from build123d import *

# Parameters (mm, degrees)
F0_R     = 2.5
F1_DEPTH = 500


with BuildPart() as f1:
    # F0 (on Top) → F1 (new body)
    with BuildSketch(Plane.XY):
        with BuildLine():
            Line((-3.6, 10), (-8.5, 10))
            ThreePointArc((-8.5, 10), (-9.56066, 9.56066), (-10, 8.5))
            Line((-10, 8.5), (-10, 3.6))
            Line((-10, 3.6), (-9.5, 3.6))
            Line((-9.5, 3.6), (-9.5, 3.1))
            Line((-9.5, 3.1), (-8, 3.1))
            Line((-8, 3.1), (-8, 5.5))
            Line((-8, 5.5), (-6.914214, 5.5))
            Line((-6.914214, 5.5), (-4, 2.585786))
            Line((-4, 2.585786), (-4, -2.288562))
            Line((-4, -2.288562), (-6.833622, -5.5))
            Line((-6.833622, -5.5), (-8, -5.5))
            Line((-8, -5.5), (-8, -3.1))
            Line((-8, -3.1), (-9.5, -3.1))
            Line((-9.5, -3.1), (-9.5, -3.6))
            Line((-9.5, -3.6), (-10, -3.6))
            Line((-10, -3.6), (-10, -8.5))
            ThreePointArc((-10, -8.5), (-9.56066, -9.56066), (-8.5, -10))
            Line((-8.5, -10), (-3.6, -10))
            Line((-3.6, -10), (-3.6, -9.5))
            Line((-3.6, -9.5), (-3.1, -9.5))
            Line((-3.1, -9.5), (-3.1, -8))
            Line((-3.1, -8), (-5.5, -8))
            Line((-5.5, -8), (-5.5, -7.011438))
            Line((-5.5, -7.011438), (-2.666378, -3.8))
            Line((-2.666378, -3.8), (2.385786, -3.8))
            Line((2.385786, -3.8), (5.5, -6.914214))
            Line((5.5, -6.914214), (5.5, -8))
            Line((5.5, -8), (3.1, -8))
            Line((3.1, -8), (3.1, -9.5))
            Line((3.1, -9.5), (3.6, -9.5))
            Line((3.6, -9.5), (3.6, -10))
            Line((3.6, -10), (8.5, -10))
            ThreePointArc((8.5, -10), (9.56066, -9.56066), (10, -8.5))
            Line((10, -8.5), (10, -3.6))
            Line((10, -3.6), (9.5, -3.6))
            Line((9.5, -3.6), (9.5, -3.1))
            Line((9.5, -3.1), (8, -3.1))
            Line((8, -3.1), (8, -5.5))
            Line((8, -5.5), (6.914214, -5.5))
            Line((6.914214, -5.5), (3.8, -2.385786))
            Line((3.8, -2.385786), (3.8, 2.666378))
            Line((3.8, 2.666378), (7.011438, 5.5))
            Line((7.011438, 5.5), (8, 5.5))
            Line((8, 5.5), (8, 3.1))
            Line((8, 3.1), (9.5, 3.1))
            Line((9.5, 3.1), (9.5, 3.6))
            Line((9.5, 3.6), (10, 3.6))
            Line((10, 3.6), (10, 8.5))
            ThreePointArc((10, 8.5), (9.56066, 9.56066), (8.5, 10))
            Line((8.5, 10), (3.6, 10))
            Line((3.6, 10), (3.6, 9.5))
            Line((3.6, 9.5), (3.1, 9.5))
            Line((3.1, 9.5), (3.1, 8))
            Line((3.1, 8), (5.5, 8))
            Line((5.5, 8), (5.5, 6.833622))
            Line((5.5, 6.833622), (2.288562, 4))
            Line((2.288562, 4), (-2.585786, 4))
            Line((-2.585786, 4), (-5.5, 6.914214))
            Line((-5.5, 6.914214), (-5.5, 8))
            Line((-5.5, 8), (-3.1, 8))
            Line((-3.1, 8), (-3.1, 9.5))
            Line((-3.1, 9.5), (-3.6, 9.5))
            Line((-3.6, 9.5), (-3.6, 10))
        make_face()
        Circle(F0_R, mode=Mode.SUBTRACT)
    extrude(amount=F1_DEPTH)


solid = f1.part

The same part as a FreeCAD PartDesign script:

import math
import FreeCAD as App
import Part
import Sketcher
from FreeCAD import Vector

doc = App.newDocument("Part")
body = doc.addObject("PartDesign::Body", "Body")

# Sketch on XY plane
sketch1 = body.newObject("Sketcher::SketchObject", "Sketch")
sketch1.AttachmentSupport = (doc.getObject("XY_Plane"), [""])
sketch1.MapMode = "FlatFace"
sketch1.addGeometry(Part.LineSegment(Vector(-3.6, 10, 0), Vector(-8.5, 10, 0)), False)
sketch1.addGeometry(Part.ArcOfCircle(Part.Circle(Vector(-8.5, 8.5, 0), Vector(0, 0, 1), 1.5), math.radians(90), math.radians(180)), False)
sketch1.addGeometry(Part.LineSegment(Vector(-10, 8.5, 0), Vector(-10, 3.6, 0)), False)
sketch1.addGeometry(Part.LineSegment(Vector(-10, 3.6, 0), Vector(-9.5, 3.6, 0)), False)
sketch1.addGeometry(Part.LineSegment(Vector(-9.5, 3.6, 0), Vector(-9.5, 3.1, 0)), False)
sketch1.addGeometry(Part.LineSegment(Vector(-9.5, 3.1, 0), Vector(-8, 3.1, 0)), False)
sketch1.addGeometry(Part.LineSegment(Vector(-8, 3.1, 0), Vector(-8, 5.5, 0)), False)
sketch1.addGeometry(Part.LineSegment(Vector(-8, 5.5, 0), Vector(-6.9, 5.5, 0)), False)
sketch1.addGeometry(Part.LineSegment(Vector(-6.9, 5.5, 0), Vector(-4, 2.6, 0)), False)
sketch1.addGeometry(Part.LineSegment(Vector(-4, 2.6, 0), Vector(-4, -2.3, 0)), False)
sketch1.addGeometry(Part.LineSegment(Vector(-4, -2.3, 0), Vector(-6.8, -5.5, 0)), False)
sketch1.addGeometry(Part.LineSegment(Vector(-6.8, -5.5, 0), Vector(-8, -5.5, 0)), False)
sketch1.addGeometry(Part.LineSegment(Vector(-8, -5.5, 0), Vector(-8, -3.1, 0)), False)
sketch1.addGeometry(Part.LineSegment(Vector(-8, -3.1, 0), Vector(-9.5, -3.1, 0)), False)
sketch1.addGeometry(Part.LineSegment(Vector(-9.5, -3.1, 0), Vector(-9.5, -3.6, 0)), False)
sketch1.addGeometry(Part.LineSegment(Vector(-9.5, -3.6, 0), Vector(-10, -3.6, 0)), False)
sketch1.addGeometry(Part.LineSegment(Vector(-10, -3.6, 0), Vector(-10, -8.5, 0)), False)
sketch1.addGeometry(Part.ArcOfCircle(Part.Circle(Vector(-8.5, -8.5, 0), Vector(0, 0, 1), 1.5), math.radians(-180), math.radians(-90)), False)
sketch1.addGeometry(Part.LineSegment(Vector(-8.5, -10, 0), Vector(-3.6, -10, 0)), False)
sketch1.addGeometry(Part.LineSegment(Vector(-3.6, -10, 0), Vector(-3.6, -9.5, 0)), False)
sketch1.addGeometry(Part.LineSegment(Vector(-3.6, -9.5, 0), Vector(-3.1, -9.5, 0)), False)
sketch1.addGeometry(Part.LineSegment(Vector(-3.1, -9.5, 0), Vector(-3.1, -8, 0)), False)
sketch1.addGeometry(Part.LineSegment(Vector(-3.1, -8, 0), Vector(-5.5, -8, 0)), False)
sketch1.addGeometry(Part.LineSegment(Vector(-5.5, -8, 0), Vector(-5.5, -7, 0)), False)
sketch1.addGeometry(Part.LineSegment(Vector(-5.5, -7, 0), Vector(-2.7, -3.8, 0)), False)
sketch1.addGeometry(Part.LineSegment(Vector(-2.7, -3.8, 0), Vector(2.4, -3.8, 0)), False)
sketch1.addGeometry(Part.LineSegment(Vector(2.4, -3.8, 0), Vector(5.5, -6.9, 0)), False)
sketch1.addGeometry(Part.LineSegment(Vector(5.5, -6.9, 0), Vector(5.5, -8, 0)), False)
sketch1.addGeometry(Part.LineSegment(Vector(5.5, -8, 0), Vector(3.1, -8, 0)), False)
sketch1.addGeometry(Part.LineSegment(Vector(3.1, -8, 0), Vector(3.1, -9.5, 0)), False)
sketch1.addGeometry(Part.LineSegment(Vector(3.1, -9.5, 0), Vector(3.6, -9.5, 0)), False)
sketch1.addGeometry(Part.LineSegment(Vector(3.6, -9.5, 0), Vector(3.6, -10, 0)), False)
sketch1.addGeometry(Part.LineSegment(Vector(3.6, -10, 0), Vector(8.5, -10, 0)), False)
sketch1.addGeometry(Part.ArcOfCircle(Part.Circle(Vector(8.5, -8.5, 0), Vector(0, 0, 1), 1.5), math.radians(-90), math.radians(0)), False)
sketch1.addGeometry(Part.LineSegment(Vector(10, -8.5, 0), Vector(10, -3.6, 0)), False)
sketch1.addGeometry(Part.LineSegment(Vector(10, -3.6, 0), Vector(9.5, -3.6, 0)), False)
sketch1.addGeometry(Part.LineSegment(Vector(9.5, -3.6, 0), Vector(9.5, -3.1, 0)), False)
sketch1.addGeometry(Part.LineSegment(Vector(9.5, -3.1, 0), Vector(8, -3.1, 0)), False)
sketch1.addGeometry(Part.LineSegment(Vector(8, -3.1, 0), Vector(8, -5.5, 0)), False)
sketch1.addGeometry(Part.LineSegment(Vector(8, -5.5, 0), Vector(6.9, -5.5, 0)), False)
sketch1.addGeometry(Part.LineSegment(Vector(6.9, -5.5, 0), Vector(3.8, -2.4, 0)), False)
sketch1.addGeometry(Part.LineSegment(Vector(3.8, -2.4, 0), Vector(3.8, 2.7, 0)), False)
sketch1.addGeometry(Part.LineSegment(Vector(3.8, 2.7, 0), Vector(7, 5.5, 0)), False)
sketch1.addGeometry(Part.LineSegment(Vector(7, 5.5, 0), Vector(8, 5.5, 0)), False)
sketch1.addGeometry(Part.LineSegment(Vector(8, 5.5, 0), Vector(8, 3.1, 0)), False)
sketch1.addGeometry(Part.LineSegment(Vector(8, 3.1, 0), Vector(9.5, 3.1, 0)), False)
sketch1.addGeometry(Part.LineSegment(Vector(9.5, 3.1, 0), Vector(9.5, 3.6, 0)), False)
sketch1.addGeometry(Part.LineSegment(Vector(9.5, 3.6, 0), Vector(10, 3.6, 0)), False)
sketch1.addGeometry(Part.LineSegment(Vector(10, 3.6, 0), Vector(10, 8.5, 0)), False)
sketch1.addGeometry(Part.ArcOfCircle(Part.Circle(Vector(8.5, 8.5, 0), Vector(0, 0, 1), 1.5), math.radians(0), math.radians(90)), False)
sketch1.addGeometry(Part.LineSegment(Vector(8.5, 10, 0), Vector(3.6, 10, 0)), False)
sketch1.addGeometry(Part.LineSegment(Vector(3.6, 10, 0), Vector(3.6, 9.5, 0)), False)
sketch1.addGeometry(Part.LineSegment(Vector(3.6, 9.5, 0), Vector(3.1, 9.5, 0)), False)
sketch1.addGeometry(Part.LineSegment(Vector(3.1, 9.5, 0), Vector(3.1, 8, 0)), False)
sketch1.addGeometry(Part.LineSegment(Vector(3.1, 8, 0), Vector(5.5, 8, 0)), False)
sketch1.addGeometry(Part.LineSegment(Vector(5.5, 8, 0), Vector(5.5, 6.8, 0)), False)
sketch1.addGeometry(Part.LineSegment(Vector(5.5, 6.8, 0), Vector(2.3, 4, 0)), False)
sketch1.addGeometry(Part.LineSegment(Vector(2.3, 4, 0), Vector(-2.6, 4, 0)), False)
sketch1.addGeometry(Part.LineSegment(Vector(-2.6, 4, 0), Vector(-5.5, 6.9, 0)), False)
sketch1.addGeometry(Part.LineSegment(Vector(-5.5, 6.9, 0), Vector(-5.5, 8, 0)), False)
sketch1.addGeometry(Part.LineSegment(Vector(-5.5, 8, 0), Vector(-3.1, 8, 0)), False)
sketch1.addGeometry(Part.LineSegment(Vector(-3.1, 8, 0), Vector(-3.1, 9.5, 0)), False)
sketch1.addGeometry(Part.LineSegment(Vector(-3.1, 9.5, 0), Vector(-3.6, 9.5, 0)), False)
sketch1.addGeometry(Part.LineSegment(Vector(-3.6, 9.5, 0), Vector(-3.6, 10, 0)), False)
sketch1.addGeometry(Part.Circle(Vector(0, 0, 0), Vector(0, 0, 1), 2.5), False)
sketch1.addConstraint(Sketcher.Constraint("Tangent", 0, 2, 1, 1))
sketch1.addConstraint(Sketcher.Constraint("Tangent", 1, 2, 2, 1))
sketch1.addConstraint(Sketcher.Constraint("Coincident", 2, 2, 3, 1))
sketch1.addConstraint(Sketcher.Constraint("Coincident", 3, 2, 4, 1))
sketch1.addConstraint(Sketcher.Constraint("Coincident", 4, 2, 5, 1))
sketch1.addConstraint(Sketcher.Constraint("Coincident", 5, 2, 6, 1))
sketch1.addConstraint(Sketcher.Constraint("Coincident", 6, 2, 7, 1))
sketch1.addConstraint(Sketcher.Constraint("Coincident", 7, 2, 8, 1))
sketch1.addConstraint(Sketcher.Constraint("Coincident", 8, 2, 9, 1))
sketch1.addConstraint(Sketcher.Constraint("Coincident", 9, 2, 10, 1))
sketch1.addConstraint(Sketcher.Constraint("Coincident", 10, 2, 11, 1))
sketch1.addConstraint(Sketcher.Constraint("Coincident", 11, 2, 12, 1))
sketch1.addConstraint(Sketcher.Constraint("Coincident", 12, 2, 13, 1))
sketch1.addConstraint(Sketcher.Constraint("Coincident", 13, 2, 14, 1))
sketch1.addConstraint(Sketcher.Constraint("Coincident", 14, 2, 15, 1))
sketch1.addConstraint(Sketcher.Constraint("Coincident", 15, 2, 16, 1))
sketch1.addConstraint(Sketcher.Constraint("Tangent", 16, 2, 17, 1))
sketch1.addConstraint(Sketcher.Constraint("Tangent", 17, 2, 18, 1))
sketch1.addConstraint(Sketcher.Constraint("Coincident", 18, 2, 19, 1))
sketch1.addConstraint(Sketcher.Constraint("Coincident", 19, 2, 20, 1))
sketch1.addConstraint(Sketcher.Constraint("Coincident", 20, 2, 21, 1))
sketch1.addConstraint(Sketcher.Constraint("Coincident", 21, 2, 22, 1))
sketch1.addConstraint(Sketcher.Constraint("Coincident", 22, 2, 23, 1))
sketch1.addConstraint(Sketcher.Constraint("Coincident", 23, 2, 24, 1))
sketch1.addConstraint(Sketcher.Constraint("Coincident", 24, 2, 25, 1))
sketch1.addConstraint(Sketcher.Constraint("Coincident", 25, 2, 26, 1))
sketch1.addConstraint(Sketcher.Constraint("Coincident", 26, 2, 27, 1))
sketch1.addConstraint(Sketcher.Constraint("Coincident", 27, 2, 28, 1))
sketch1.addConstraint(Sketcher.Constraint("Coincident", 28, 2, 29, 1))
sketch1.addConstraint(Sketcher.Constraint("Coincident", 29, 2, 30, 1))
sketch1.addConstraint(Sketcher.Constraint("Coincident", 30, 2, 31, 1))
sketch1.addConstraint(Sketcher.Constraint("Coincident", 31, 2, 32, 1))
sketch1.addConstraint(Sketcher.Constraint("Tangent", 32, 2, 33, 1))
sketch1.addConstraint(Sketcher.Constraint("Tangent", 33, 2, 34, 1))
sketch1.addConstraint(Sketcher.Constraint("Coincident", 34, 2, 35, 1))
sketch1.addConstraint(Sketcher.Constraint("Coincident", 35, 2, 36, 1))
sketch1.addConstraint(Sketcher.Constraint("Coincident", 36, 2, 37, 1))
sketch1.addConstraint(Sketcher.Constraint("Coincident", 37, 2, 38, 1))
sketch1.addConstraint(Sketcher.Constraint("Coincident", 38, 2, 39, 1))
sketch1.addConstraint(Sketcher.Constraint("Coincident", 39, 2, 40, 1))
sketch1.addConstraint(Sketcher.Constraint("Coincident", 40, 2, 41, 1))
sketch1.addConstraint(Sketcher.Constraint("Coincident", 41, 2, 42, 1))
sketch1.addConstraint(Sketcher.Constraint("Coincident", 42, 2, 43, 1))
sketch1.addConstraint(Sketcher.Constraint("Coincident", 43, 2, 44, 1))
sketch1.addConstraint(Sketcher.Constraint("Coincident", 44, 2, 45, 1))
sketch1.addConstraint(Sketcher.Constraint("Coincident", 45, 2, 46, 1))
sketch1.addConstraint(Sketcher.Constraint("Coincident", 46, 2, 47, 1))
sketch1.addConstraint(Sketcher.Constraint("Coincident", 47, 2, 48, 1))
sketch1.addConstraint(Sketcher.Constraint("Tangent", 48, 2, 49, 1))
sketch1.addConstraint(Sketcher.Constraint("Tangent", 49, 2, 50, 1))
sketch1.addConstraint(Sketcher.Constraint("Coincident", 50, 2, 51, 1))
sketch1.addConstraint(Sketcher.Constraint("Coincident", 51, 2, 52, 1))
sketch1.addConstraint(Sketcher.Constraint("Coincident", 52, 2, 53, 1))
sketch1.addConstraint(Sketcher.Constraint("Coincident", 53, 2, 54, 1))
sketch1.addConstraint(Sketcher.Constraint("Coincident", 54, 2, 55, 1))
sketch1.addConstraint(Sketcher.Constraint("Coincident", 55, 2, 56, 1))
sketch1.addConstraint(Sketcher.Constraint("Coincident", 56, 2, 57, 1))
sketch1.addConstraint(Sketcher.Constraint("Coincident", 57, 2, 58, 1))
sketch1.addConstraint(Sketcher.Constraint("Coincident", 58, 2, 59, 1))
sketch1.addConstraint(Sketcher.Constraint("Coincident", 59, 2, 60, 1))
sketch1.addConstraint(Sketcher.Constraint("Coincident", 60, 2, 61, 1))
sketch1.addConstraint(Sketcher.Constraint("Coincident", 61, 2, 62, 1))
sketch1.addConstraint(Sketcher.Constraint("Coincident", 62, 2, 63, 1))
sketch1.addConstraint(Sketcher.Constraint("Coincident", 63, 2, 0, 1))
sketch1.addConstraint(Sketcher.Constraint("Horizontal", 0))
sketch1.addConstraint(Sketcher.Constraint("Vertical", 2))
sketch1.addConstraint(Sketcher.Constraint("Horizontal", 3))
sketch1.addConstraint(Sketcher.Constraint("Vertical", 4))
sketch1.addConstraint(Sketcher.Constraint("Horizontal", 5))
sketch1.addConstraint(Sketcher.Constraint("Vertical", 6))
sketch1.addConstraint(Sketcher.Constraint("Horizontal", 7))
sketch1.addConstraint(Sketcher.Constraint("Vertical", 9))
sketch1.addConstraint(Sketcher.Constraint("Horizontal", 11))
sketch1.addConstraint(Sketcher.Constraint("Vertical", 12))
sketch1.addConstraint(Sketcher.Constraint("Horizontal", 13))
sketch1.addConstraint(Sketcher.Constraint("Vertical", 14))
sketch1.addConstraint(Sketcher.Constraint("Horizontal", 15))
sketch1.addConstraint(Sketcher.Constraint("Vertical", 16))
sketch1.addConstraint(Sketcher.Constraint("Horizontal", 18))
sketch1.addConstraint(Sketcher.Constraint("Vertical", 19))
sketch1.addConstraint(Sketcher.Constraint("Horizontal", 20))
sketch1.addConstraint(Sketcher.Constraint("Vertical", 21))
sketch1.addConstraint(Sketcher.Constraint("Horizontal", 22))
sketch1.addConstraint(Sketcher.Constraint("Vertical", 23))
sketch1.addConstraint(Sketcher.Constraint("Horizontal", 25))
sketch1.addConstraint(Sketcher.Constraint("Vertical", 27))
sketch1.addConstraint(Sketcher.Constraint("Horizontal", 28))
sketch1.addConstraint(Sketcher.Constraint("Vertical", 29))
sketch1.addConstraint(Sketcher.Constraint("Horizontal", 30))
sketch1.addConstraint(Sketcher.Constraint("Vertical", 31))
sketch1.addConstraint(Sketcher.Constraint("Horizontal", 32))
sketch1.addConstraint(Sketcher.Constraint("Vertical", 34))
sketch1.addConstraint(Sketcher.Constraint("Horizontal", 35))
sketch1.addConstraint(Sketcher.Constraint("Vertical", 36))
sketch1.addConstraint(Sketcher.Constraint("Horizontal", 37))
sketch1.addConstraint(Sketcher.Constraint("Vertical", 38))
sketch1.addConstraint(Sketcher.Constraint("Horizontal", 39))
sketch1.addConstraint(Sketcher.Constraint("Vertical", 41))
sketch1.addConstraint(Sketcher.Constraint("Horizontal", 43))
sketch1.addConstraint(Sketcher.Constraint("Vertical", 44))
sketch1.addConstraint(Sketcher.Constraint("Horizontal", 45))
sketch1.addConstraint(Sketcher.Constraint("Vertical", 46))
sketch1.addConstraint(Sketcher.Constraint("Horizontal", 47))
sketch1.addConstraint(Sketcher.Constraint("Vertical", 48))
sketch1.addConstraint(Sketcher.Constraint("Horizontal", 50))
sketch1.addConstraint(Sketcher.Constraint("Vertical", 51))
sketch1.addConstraint(Sketcher.Constraint("Horizontal", 52))
sketch1.addConstraint(Sketcher.Constraint("Vertical", 53))
sketch1.addConstraint(Sketcher.Constraint("Horizontal", 54))
sketch1.addConstraint(Sketcher.Constraint("Vertical", 55))
sketch1.addConstraint(Sketcher.Constraint("Horizontal", 57))
sketch1.addConstraint(Sketcher.Constraint("Vertical", 59))
sketch1.addConstraint(Sketcher.Constraint("Horizontal", 60))
sketch1.addConstraint(Sketcher.Constraint("Vertical", 61))
sketch1.addConstraint(Sketcher.Constraint("Horizontal", 62))
sketch1.addConstraint(Sketcher.Constraint("Vertical", 63))
sketch1.addConstraint(Sketcher.Constraint("Coincident", 64, 3, -1, 1))
sketch1.addConstraint(Sketcher.Constraint("Equal", 1, 17))
sketch1.addConstraint(Sketcher.Constraint("Equal", 17, 33))
sketch1.addConstraint(Sketcher.Constraint("Equal", 33, 49))
sketch1.addConstraint(Sketcher.Constraint("Symmetric", 1, 3, 33, 3, -1, 1))
sketch1.addConstraint(Sketcher.Constraint("Symmetric", 17, 3, 49, 3, -1, 1))
sketch1.addConstraint(Sketcher.Constraint("Symmetric", 3, 2, 35, 2, -1, 1))
sketch1.addConstraint(Sketcher.Constraint("Symmetric", 5, 2, 37, 2, -1, 1))
sketch1.addConstraint(Sketcher.Constraint("Symmetric", 7, 2, 39, 2, -1, 1))
sketch1.addConstraint(Sketcher.Constraint("Symmetric", 11, 2, 43, 2, -1, 1))
sketch1.addConstraint(Sketcher.Constraint("Symmetric", 13, 2, 45, 2, -1, 1))
sketch1.addConstraint(Sketcher.Constraint("Symmetric", 19, 2, 51, 2, -1, 1))
sketch1.addConstraint(Sketcher.Constraint("Symmetric", 21, 2, 53, 2, -1, 1))
sketch1.addConstraint(Sketcher.Constraint("Symmetric", 26, 2, 58, 2, -1, 1))
sketch1.addConstraint(Sketcher.Constraint("Symmetric", 28, 2, 60, 2, -1, 1))
sketch1.addConstraint(Sketcher.Constraint("Symmetric", 30, 2, 62, 2, -1, 1))
sketch1.addConstraint(Sketcher.Constraint("Symmetric", 17, 3, 33, 3, -2))
sketch1.addConstraint(Sketcher.Constraint("Symmetric", 22, 2, 27, 2, -2))
sketch1.addConstraint(Sketcher.Constraint("Symmetric", 20, 2, 29, 2, -2))
sketch1.addConstraint(Sketcher.Constraint("Symmetric", 14, 2, 35, 2, -2))
sketch1.addConstraint(Sketcher.Constraint("Symmetric", 12, 2, 37, 2, -2))
sketch1.addConstraint(Sketcher.Constraint("Parallel", 10, 24))
sketch1.addConstraint(Sketcher.Constraint("Parallel", 8, 26))
sketch1.addConstraint(Sketcher.Constraint("Parallel", 26, 40))
sketch1.addConstraint(Sketcher.Constraint("Parallel", 42, 56))
sketch1.addConstraint(Sketcher.Constraint("Parallel", 40, 58))
sketch1.addConstraint(Sketcher.Constraint("Horizontal", 11, 2, 38, 2))
sketch1.addConstraint(Sketcher.Constraint("Horizontal", 3, 2, 46, 2))
sketch1.addConstraint(Sketcher.Constraint("Vertical", 31, 2, 50, 2))
sketch1.addConstraint(Sketcher.Constraint("Vertical", 27, 2, 54, 2))
sketch1.addConstraint(Sketcher.Constraint("Equal", 15, 20))
sketch1.addConstraint(Sketcher.Constraint("Equal", 50, 2))
sketch1.addConstraint(Sketcher.Constraint("Equal", 62, 4))
sketch1.addConstraint(Sketcher.Constraint("Equal", 60, 6))
sketch1.addConstraint(Sketcher.Constraint("Equal", 57, 9))
sketch1.addConstraint(Sketcher.Constraint("Equal", 14, 19))
sketch1.addConstraint(Sketcher.Constraint("Equal", 45, 21))
sketch1.addConstraint(Sketcher.Constraint("Equal", 43, 23))
sketch1.addConstraint(Sketcher.Constraint("Equal", 39, 27))
sketch1.addConstraint(Sketcher.Constraint("Equal", 25, 41))
sketch1.addConstraint(Sketcher.Constraint("Equal", 11, 55))
sketch1.addConstraint(Sketcher.Constraint("Equal", 10, 24))
sketch1.addConstraint(Sketcher.Constraint("Equal", 26, 40))
sketch1.addConstraint(Sketcher.Constraint("Equal", 24, 42))
sketch1.addConstraint(Sketcher.Constraint("Equal", 42, 56))
sketch1.addConstraint(Sketcher.Constraint("Diameter", 64, 5.0))
sketch1.addConstraint(Sketcher.Constraint("Radius", 1, 1.500001))
sketch1.addConstraint(Sketcher.Constraint("DistanceX", 0, 2, 0, 1, 4.9))
sketch1.addConstraint(Sketcher.Constraint("DistanceX", 3, 1, 3, 2, 0.5))
sketch1.addConstraint(Sketcher.Constraint("DistanceX", 5, 1, 5, 2, 1.5))
sketch1.addConstraint(Sketcher.Constraint("DistanceX", 22, 2, 22, 1, 2.4))
sketch1.addConstraint(Sketcher.Constraint("DistanceY", -1, 1, 0, 2, 10.0))
sketch1.addConstraint(Sketcher.Constraint("DistanceX", 8, 2, -1, 1, 4.0))
sketch1.addConstraint(Sketcher.Constraint("DistanceY", 24, 2, -1, 1, 3.8))
sketch1.addConstraint(Sketcher.Constraint("DistanceX", 43, 1, 43, 2, 0.988562))
sketch1.addConstraint(Sketcher.Constraint("DistanceX", 57, 2, 57, 1, 4.874348))
sketch1.addConstraint(Sketcher.Constraint("DistanceX", 11, 2, 11, 1, 1.166378))
pad1 = body.newObject("PartDesign::Pad", "Pad")
pad1.Profile = sketch1
pad1.Length = 500

doc.recompute()
